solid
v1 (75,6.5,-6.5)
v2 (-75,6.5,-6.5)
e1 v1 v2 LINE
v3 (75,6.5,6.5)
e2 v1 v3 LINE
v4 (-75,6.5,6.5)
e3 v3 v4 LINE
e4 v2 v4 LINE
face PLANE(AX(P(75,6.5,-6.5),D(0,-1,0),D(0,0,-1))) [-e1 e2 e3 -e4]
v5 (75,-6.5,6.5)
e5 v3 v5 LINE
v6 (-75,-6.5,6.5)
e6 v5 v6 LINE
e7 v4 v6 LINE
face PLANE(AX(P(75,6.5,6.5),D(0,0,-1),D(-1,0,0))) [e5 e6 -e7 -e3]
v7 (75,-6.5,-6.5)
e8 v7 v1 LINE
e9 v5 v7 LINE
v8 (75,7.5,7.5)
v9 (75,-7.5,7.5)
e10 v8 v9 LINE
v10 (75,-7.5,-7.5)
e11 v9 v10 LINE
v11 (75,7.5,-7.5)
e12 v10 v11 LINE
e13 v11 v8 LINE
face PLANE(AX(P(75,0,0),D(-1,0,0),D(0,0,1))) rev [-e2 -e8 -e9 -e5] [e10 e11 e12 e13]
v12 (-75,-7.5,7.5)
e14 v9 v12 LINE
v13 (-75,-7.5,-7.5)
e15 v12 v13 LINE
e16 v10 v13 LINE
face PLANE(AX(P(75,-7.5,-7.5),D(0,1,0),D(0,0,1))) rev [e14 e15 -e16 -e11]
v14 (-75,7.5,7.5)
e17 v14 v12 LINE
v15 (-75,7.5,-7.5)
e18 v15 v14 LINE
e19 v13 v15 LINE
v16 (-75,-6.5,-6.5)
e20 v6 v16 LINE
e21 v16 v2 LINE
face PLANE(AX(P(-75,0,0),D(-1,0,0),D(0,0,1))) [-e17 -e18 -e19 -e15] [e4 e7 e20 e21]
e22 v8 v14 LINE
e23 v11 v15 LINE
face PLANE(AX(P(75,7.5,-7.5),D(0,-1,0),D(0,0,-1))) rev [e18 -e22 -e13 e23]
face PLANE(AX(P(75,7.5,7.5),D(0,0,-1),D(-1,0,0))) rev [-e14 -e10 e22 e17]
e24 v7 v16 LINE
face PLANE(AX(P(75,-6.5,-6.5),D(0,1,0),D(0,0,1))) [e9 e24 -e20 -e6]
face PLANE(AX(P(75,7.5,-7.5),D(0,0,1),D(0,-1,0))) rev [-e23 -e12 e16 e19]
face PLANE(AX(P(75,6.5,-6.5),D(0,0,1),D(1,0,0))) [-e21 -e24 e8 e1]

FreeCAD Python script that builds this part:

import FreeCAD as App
import Part
import Sketcher

V = App.Vector
Q = App.Units.Quantity


def add_polygon(sketch, points):
    """Adds a closed chain of lines whose ends are joined by coincident constraints."""
    first, n = sketch.GeometryCount, len(points)
    for a, b in zip(points, points[1:] + points[:1]):
        sketch.addGeometry(Part.LineSegment(App.Vector(*a, 0), App.Vector(*b, 0)), False)
    for i in range(n):
        sketch.addConstraint(Sketcher.Constraint("Coincident", first + i, 2, first + (i + 1) % n, 1))

doc = App.newDocument("Part")
body = doc.addObject("PartDesign::Body", "Body")

sketch1 = doc.addObject("Sketcher::SketchObject", "Sketch")
body.addObject(sketch1)
sketch1.AttachmentSupport = (doc.YZ_Plane, [""])
sketch1.MapMode = "FlatFace"
add_polygon(sketch1, [(7.5, 7.5), (-7.5, 7.5), (-7.5, -7.5), (7.5, -7.5)])
add_polygon(sketch1, [(-6.5, -6.5), (-6.5, 6.5), (6.5, 6.5), (6.5, -6.5)])
sketch1.addConstraint(Sketcher.Constraint("Horizontal", 0))
sketch1.addConstraint(Sketcher.Constraint("Vertical", 1))
sketch1.addConstraint(Sketcher.Constraint("Horizontal", 2))
sketch1.addConstraint(Sketcher.Constraint("Vertical", 3))
sketch1.addConstraint(Sketcher.Constraint("Vertical", 4))
sketch1.addConstraint(Sketcher.Constraint("Horizontal", 5))
sketch1.addConstraint(Sketcher.Constraint("Vertical", 6))
sketch1.addConstraint(Sketcher.Constraint("Horizontal", 7))
sketch1.addConstraint(Sketcher.Constraint("Symmetric", 0, 2, 2, 2, -1, 1))
sketch1.addConstraint(Sketcher.Constraint("Symmetric", 4, 2, 6, 2, -1, 1))
sketch1.addConstraint(Sketcher.Constraint("Equal", 2, 1))
sketch1.addConstraint(Sketcher.Constraint("Equal", 7, 4))
sketch1.addConstraint(Sketcher.Constraint("DistanceX", 0, 2, 0, 1, Q("15 mm")))
sketch1.addConstraint(Sketcher.Constraint("DistanceX", 5, 1, 5, 2, Q("13 mm")))
pad1 = doc.addObject("PartDesign::Pad", "Pad")
body.addObject(pad1)
pad1.Profile = sketch1
pad1.Length = 150
pad1.Midplane = True

doc.recompute()
